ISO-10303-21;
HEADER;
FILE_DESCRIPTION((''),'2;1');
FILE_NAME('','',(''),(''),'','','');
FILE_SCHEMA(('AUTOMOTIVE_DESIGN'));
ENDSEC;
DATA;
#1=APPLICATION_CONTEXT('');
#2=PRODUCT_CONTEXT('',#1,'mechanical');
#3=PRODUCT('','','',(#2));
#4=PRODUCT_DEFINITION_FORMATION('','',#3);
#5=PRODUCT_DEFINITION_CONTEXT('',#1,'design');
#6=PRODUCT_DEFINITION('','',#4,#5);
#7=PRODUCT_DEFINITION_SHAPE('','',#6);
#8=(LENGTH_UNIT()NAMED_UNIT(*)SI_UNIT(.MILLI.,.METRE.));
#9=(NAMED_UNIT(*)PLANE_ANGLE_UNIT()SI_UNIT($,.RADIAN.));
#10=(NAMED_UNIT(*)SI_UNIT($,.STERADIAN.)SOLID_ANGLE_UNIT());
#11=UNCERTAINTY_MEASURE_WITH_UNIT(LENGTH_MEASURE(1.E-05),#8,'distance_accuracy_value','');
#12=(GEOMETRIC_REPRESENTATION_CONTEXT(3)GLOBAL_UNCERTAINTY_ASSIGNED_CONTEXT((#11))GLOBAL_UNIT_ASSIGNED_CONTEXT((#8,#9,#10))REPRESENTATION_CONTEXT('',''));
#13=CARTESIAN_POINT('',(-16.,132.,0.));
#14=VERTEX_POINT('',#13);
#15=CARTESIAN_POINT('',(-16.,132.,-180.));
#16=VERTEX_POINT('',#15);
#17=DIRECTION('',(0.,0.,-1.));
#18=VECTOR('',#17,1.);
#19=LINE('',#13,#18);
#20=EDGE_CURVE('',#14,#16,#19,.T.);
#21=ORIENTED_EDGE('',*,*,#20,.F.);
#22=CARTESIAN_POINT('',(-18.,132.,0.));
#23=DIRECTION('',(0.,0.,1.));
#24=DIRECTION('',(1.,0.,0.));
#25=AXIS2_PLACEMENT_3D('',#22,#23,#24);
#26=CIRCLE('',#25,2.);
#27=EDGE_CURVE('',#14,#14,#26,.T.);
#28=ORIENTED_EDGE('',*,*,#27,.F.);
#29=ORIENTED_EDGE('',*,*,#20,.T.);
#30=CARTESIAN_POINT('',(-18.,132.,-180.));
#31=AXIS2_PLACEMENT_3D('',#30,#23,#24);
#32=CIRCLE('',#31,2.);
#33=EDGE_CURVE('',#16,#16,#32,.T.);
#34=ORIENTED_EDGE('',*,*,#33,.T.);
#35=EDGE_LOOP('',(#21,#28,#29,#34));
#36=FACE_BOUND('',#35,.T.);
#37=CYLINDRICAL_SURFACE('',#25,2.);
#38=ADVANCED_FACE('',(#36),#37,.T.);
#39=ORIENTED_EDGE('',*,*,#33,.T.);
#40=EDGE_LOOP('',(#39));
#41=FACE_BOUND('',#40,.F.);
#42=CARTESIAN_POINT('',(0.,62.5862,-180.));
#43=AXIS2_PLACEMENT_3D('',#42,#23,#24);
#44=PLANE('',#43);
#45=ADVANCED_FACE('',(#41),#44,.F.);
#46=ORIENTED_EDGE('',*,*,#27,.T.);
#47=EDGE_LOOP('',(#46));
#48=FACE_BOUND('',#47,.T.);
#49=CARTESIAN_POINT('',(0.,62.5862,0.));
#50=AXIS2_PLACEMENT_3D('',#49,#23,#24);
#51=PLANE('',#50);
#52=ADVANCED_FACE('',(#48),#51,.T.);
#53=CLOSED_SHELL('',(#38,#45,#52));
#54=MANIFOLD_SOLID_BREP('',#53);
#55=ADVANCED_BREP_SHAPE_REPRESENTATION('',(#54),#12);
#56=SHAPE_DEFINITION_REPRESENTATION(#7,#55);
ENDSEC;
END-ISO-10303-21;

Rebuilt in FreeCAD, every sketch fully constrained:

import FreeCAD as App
import Part
import Sketcher

V = App.Vector

doc = App.newDocument("Part")
body = doc.addObject("PartDesign::Body", "Body")

# Sketch on XY plane
sketch1 = body.newObject("Sketcher::SketchObject", "Sketch")
sketch1.AttachmentSupport = (doc.getObject("XY_Plane"), [""])
sketch1.MapMode = "FlatFace"
sketch1.addGeometry(Part.Circle(V(-18, 132, 0), V(0, 0, 1), 2), False)
sketch1.addConstraint([
    Sketcher.Constraint("Diameter", 0, 4.0),
    Sketcher.Constraint("DistanceX", 0, 3, -1, 1, 18.0),
    Sketcher.Constraint("DistanceY", -1, 1, 0, 3, 132.0),
])
pad1 = body.newObject("PartDesign::Pad", "Pad")
pad1.Profile = sketch1
pad1.Length = 180
pad1.Reversed = True

doc.recompute()
